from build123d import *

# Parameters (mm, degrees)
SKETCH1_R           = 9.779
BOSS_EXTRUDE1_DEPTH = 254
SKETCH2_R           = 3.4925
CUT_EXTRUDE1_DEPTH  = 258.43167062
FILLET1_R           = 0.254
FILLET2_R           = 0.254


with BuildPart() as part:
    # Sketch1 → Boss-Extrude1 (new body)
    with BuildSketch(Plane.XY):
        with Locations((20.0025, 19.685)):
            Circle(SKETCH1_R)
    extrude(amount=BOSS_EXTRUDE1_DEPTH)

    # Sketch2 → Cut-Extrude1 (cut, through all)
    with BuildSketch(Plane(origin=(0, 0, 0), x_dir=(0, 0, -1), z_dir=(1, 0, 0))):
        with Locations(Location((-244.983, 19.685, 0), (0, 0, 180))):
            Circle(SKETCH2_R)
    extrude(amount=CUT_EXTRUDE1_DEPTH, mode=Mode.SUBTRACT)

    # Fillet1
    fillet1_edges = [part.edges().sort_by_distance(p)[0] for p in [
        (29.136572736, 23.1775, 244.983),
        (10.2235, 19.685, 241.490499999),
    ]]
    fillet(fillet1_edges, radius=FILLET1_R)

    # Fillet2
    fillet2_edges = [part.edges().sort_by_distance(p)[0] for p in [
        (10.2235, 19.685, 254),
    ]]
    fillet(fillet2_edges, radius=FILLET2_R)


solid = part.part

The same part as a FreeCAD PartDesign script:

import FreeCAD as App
import Part
import Sketcher
from FreeCAD import Vector
Q = App.Units.Quantity


def edges_at(feature, points):
    """Names of the edges that pass closest to the given points."""
    edges = feature.Shape.Edges
    near = lambda p: min(range(len(edges)), key=lambda i: edges[i].distToShape(Part.Vertex(*p))[0])
    return sorted({f"Edge{near(p) + 1}" for p in points})

doc = App.newDocument("Part")
params = doc.addObject("Spreadsheet::Sheet", "Params")
for row, (alias, value) in enumerate([
    ("sketch1_diameter", "0.77 in"),
    ("pad1_length", "10 in"),
    ("sketch2_diameter", "0.275 in"),
    ("fillet_radius", "0.01 in"),
    ("fillet2_radius", "0.01 in"),
], start=1):
    params.set(f"A{row}", alias)
    params.set(f"B{row}", "=" + value)
    params.setAlias(f"B{row}", alias)

body = doc.addObject("PartDesign::Body", "Body")

# Sketch on XY plane
sketch1 = body.newObject("Sketcher::SketchObject", "Sketch")
sketch1.AttachmentSupport = (doc.getObject("XY_Plane"), [""])
sketch1.MapMode = "FlatFace"
sketch1.addGeometry(Part.Circle(Vector(20, 20, 0), Vector(0, 0, 1), 10), False)
sketch1.addConstraint([
    Sketcher.Constraint("Diameter", 0, Q("0.77 in")),
    Sketcher.Constraint("DistanceY", -1, 1, 0, 3, Q("0.775 in")),
    Sketcher.Constraint("DistanceX", -1, 1, 0, 3, Q("0.7875 in")),
])
sketch1.setExpression("Constraints[0]", "Params.sketch1_diameter")
pad1 = body.newObject("PartDesign::Pad", "Pad")
pad1.Profile = sketch1
pad1.setExpression("Length", "Params.pad1_length")

# Sketch on YZ plane
sketch2 = body.newObject("Sketcher::SketchObject", "Sketch001")
sketch2.AttachmentSupport = (doc.getObject("YZ_Plane"), [""])
sketch2.MapMode = "FlatFace"
sketch2.addGeometry(Part.Circle(Vector(19.7, 245, 0), Vector(0, 0, 1), 3.5), False)
sketch2.addConstraint([
    Sketcher.Constraint("Diameter", 0, Q("0.275 in")),
    Sketcher.Constraint("DistanceX", -1, 1, 0, 3, Q("0.775 in")),
    Sketcher.Constraint("DistanceY", -1, 1, 0, 3, Q("9.645 in")),
])
sketch2.setExpression("Constraints[0]", "Params.sketch2_diameter")
pocket1 = body.newObject("PartDesign::Pocket", "Pocket")
pocket1.Profile = sketch2
pocket1.Type = "ThroughAll"
pocket1.Reversed = True
doc.recompute()

fillet = body.newObject("PartDesign::Fillet", "Fillet")
fillet.Base = (pocket1, edges_at(pocket1, [(29.137, 23.177, 244.983), (10.223, 19.685, 241.49)]))
fillet.setExpression("Radius", "Params.fillet_radius")
doc.recompute()

fillet2 = body.newObject("PartDesign::Fillet", "Fillet001")
fillet2.Base = (fillet, edges_at(fillet, [(10.223, 19.685, 254)]))
fillet2.setExpression("Radius", "Params.fillet2_radius")

doc.recompute()
